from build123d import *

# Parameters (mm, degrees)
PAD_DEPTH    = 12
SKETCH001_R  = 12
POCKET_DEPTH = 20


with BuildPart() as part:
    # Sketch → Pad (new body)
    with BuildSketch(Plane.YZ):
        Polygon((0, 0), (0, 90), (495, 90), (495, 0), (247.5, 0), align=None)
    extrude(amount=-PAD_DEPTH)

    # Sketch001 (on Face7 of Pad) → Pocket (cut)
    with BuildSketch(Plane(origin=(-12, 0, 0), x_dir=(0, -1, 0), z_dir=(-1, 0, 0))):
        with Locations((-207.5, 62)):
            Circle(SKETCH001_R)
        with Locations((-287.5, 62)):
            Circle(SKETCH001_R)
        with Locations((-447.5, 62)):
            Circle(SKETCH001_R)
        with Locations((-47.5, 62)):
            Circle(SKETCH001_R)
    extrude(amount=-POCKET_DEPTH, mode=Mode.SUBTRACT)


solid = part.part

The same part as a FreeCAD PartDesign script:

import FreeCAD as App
import Part
import Sketcher
Q = App.Units.Quantity

doc = App.newDocument("Part")
body = doc.addObject("PartDesign::Body", "Body")

sketch1 = body.newObject("Sketcher::SketchObject", "Sketch")
sketch1.AttachmentSupport = (doc.getObject("YZ_Plane"), [""])
sketch1.MapMode = "FlatFace"
sketch1.addGeometry([
    Part.LineSegment(App.Vector(0, 90, 0), App.Vector(0, 0, 0)),
    Part.LineSegment(App.Vector(0, 0, 0), App.Vector(495, 0, 0)),
    Part.LineSegment(App.Vector(495, 0, 0), App.Vector(495, 90, 0)),
    Part.LineSegment(App.Vector(495, 90, 0), App.Vector(0, 90, 0)),
], False)
sketch1.addConstraint([
    Sketcher.Constraint("Coincident", 0, 2, 1, 1),
    Sketcher.Constraint("Coincident", 1, 2, 2, 1),
    Sketcher.Constraint("Coincident", 2, 2, 3, 1),
    Sketcher.Constraint("Coincident", 3, 2, 0, 1),
    Sketcher.Constraint("Vertical", 0),
    Sketcher.Constraint("Horizontal", 1),
    Sketcher.Constraint("Vertical", 2),
    Sketcher.Constraint("Horizontal", 3),
    Sketcher.Constraint("Coincident", 0, 2, -1, 1),
    Sketcher.Constraint("DistanceX", 1, 1, 1, 2, Q("495 mm")),
    Sketcher.Constraint("DistanceY", 0, 2, 0, 1, Q("90 mm")),
])
pad1 = body.newObject("PartDesign::Pad", "Pad")
pad1.Profile = sketch1
pad1.Length = 12
pad1.Reversed = True

sketch2 = body.newObject("Sketcher::SketchObject", "Sketch001")
sketch2.AttachmentSupport = (doc.getObject("YZ_Plane"), [""])
sketch2.MapMode = "FlatFace"
sketch2.AttachmentOffset = App.Placement(App.Vector(0, 0, -12), App.Rotation())
sketch2.addGeometry([
    Part.Circle(App.Vector(208, 62, 0), App.Vector(0, 0, 1), 12),
    Part.Circle(App.Vector(288, 62, 0), App.Vector(0, 0, 1), 12),
    Part.Circle(App.Vector(448, 62, 0), App.Vector(0, 0, 1), 12),
    Part.Circle(App.Vector(48, 62, 0), App.Vector(0, 0, 1), 12),
], False)
sketch2.addConstraint([
    Sketcher.Constraint("Equal", 0, 1),
    Sketcher.Constraint("Equal", 1, 2),
    Sketcher.Constraint("Equal", 2, 3),
    Sketcher.Constraint("Horizontal", 0, 3, 1, 3),
    Sketcher.Constraint("Horizontal", 1, 3, 2, 3),
    Sketcher.Constraint("Horizontal", 2, 3, 3, 3),
    Sketcher.Constraint("Diameter", 0, Q("24 mm")),
    Sketcher.Constraint("DistanceY", -1, 1, 0, 3, Q("62 mm")),
    Sketcher.Constraint("DistanceX", 0, 3, 1, 3, Q("80 mm")),
    Sketcher.Constraint("DistanceX", 1, 3, 2, 3, Q("160 mm")),
    Sketcher.Constraint("DistanceX", 3, 3, 0, 3, Q("160 mm")),
    Sketcher.Constraint("DistanceX", -1, 1, 0, 3, Q("207.5 mm")),
])
pocket1 = body.newObject("PartDesign::Pocket", "Pocket")
pocket1.Profile = sketch2
pocket1.Length = 20
pocket1.Reversed = True

doc.recompute()
